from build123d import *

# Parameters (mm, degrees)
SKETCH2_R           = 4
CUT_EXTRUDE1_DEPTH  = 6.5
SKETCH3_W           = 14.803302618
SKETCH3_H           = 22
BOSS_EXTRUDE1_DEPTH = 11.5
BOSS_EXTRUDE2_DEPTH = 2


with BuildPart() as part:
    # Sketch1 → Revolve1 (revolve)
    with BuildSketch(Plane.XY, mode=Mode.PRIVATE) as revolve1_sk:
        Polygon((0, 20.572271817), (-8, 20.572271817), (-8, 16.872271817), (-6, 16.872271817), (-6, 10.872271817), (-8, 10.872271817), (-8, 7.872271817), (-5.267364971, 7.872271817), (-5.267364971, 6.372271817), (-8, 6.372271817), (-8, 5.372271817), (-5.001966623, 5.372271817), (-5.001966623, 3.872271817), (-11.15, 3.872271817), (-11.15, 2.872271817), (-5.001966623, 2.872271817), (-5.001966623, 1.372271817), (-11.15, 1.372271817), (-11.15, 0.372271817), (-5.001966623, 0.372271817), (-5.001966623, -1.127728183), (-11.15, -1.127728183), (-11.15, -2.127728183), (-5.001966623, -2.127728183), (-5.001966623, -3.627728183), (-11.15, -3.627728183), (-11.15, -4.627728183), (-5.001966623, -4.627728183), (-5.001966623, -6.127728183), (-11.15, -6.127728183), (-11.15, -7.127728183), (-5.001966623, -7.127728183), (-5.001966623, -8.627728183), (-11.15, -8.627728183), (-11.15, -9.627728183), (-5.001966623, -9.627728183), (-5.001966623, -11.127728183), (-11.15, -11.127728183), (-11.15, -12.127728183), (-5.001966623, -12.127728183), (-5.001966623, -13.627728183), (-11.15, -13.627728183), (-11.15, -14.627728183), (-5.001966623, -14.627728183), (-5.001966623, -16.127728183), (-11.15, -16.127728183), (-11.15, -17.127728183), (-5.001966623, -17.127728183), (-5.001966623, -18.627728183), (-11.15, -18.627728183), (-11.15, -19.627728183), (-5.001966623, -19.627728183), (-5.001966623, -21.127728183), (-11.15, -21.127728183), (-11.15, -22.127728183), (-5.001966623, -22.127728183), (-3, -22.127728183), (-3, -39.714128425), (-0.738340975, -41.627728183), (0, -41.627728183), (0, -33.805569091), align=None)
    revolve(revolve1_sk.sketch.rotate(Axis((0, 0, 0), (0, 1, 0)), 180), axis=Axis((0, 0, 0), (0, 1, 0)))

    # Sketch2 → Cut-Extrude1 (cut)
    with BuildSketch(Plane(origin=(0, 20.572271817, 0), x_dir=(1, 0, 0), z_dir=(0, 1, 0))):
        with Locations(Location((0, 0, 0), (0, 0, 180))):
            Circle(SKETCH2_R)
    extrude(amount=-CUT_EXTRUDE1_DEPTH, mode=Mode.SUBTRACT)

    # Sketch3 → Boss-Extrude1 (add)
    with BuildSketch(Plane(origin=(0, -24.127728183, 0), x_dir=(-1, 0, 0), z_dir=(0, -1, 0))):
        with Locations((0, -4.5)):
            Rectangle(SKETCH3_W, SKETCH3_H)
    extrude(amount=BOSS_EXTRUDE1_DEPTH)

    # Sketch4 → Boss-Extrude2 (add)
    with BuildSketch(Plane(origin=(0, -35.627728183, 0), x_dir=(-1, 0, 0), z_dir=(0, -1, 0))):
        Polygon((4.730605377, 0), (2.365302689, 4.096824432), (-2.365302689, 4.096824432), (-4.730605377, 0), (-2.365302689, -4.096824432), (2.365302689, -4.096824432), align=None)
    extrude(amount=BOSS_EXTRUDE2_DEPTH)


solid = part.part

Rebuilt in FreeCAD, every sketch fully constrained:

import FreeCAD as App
import Part
import Sketcher
Q = App.Units.Quantity

doc = App.newDocument("Part")
body = doc.addObject("PartDesign::Body", "Body")

sketch1 = doc.addObject("Sketcher::SketchObject", "Sketch")
body.addObject(sketch1)
sketch1.AttachmentSupport = (doc.XY_Plane, [""])
sketch1.MapMode = "FlatFace"
sketch1.addGeometry([
    Part.LineSegment(App.Vector(0, 20.6, 0), App.Vector(-8, 20.6, 0)),
    Part.LineSegment(App.Vector(-8, 20.6, 0), App.Vector(-8, 16.9, 0)),
    Part.LineSegment(App.Vector(-8, 16.9, 0), App.Vector(-6, 16.9, 0)),
    Part.LineSegment(App.Vector(-6, 16.9, 0), App.Vector(-6, 10.9, 0)),
    Part.LineSegment(App.Vector(-6, 10.9, 0), App.Vector(-8, 10.9, 0)),
    Part.LineSegment(App.Vector(-8, 10.9, 0), App.Vector(-8, 7.9, 0)),
    Part.LineSegment(App.Vector(-8, 7.9, 0), App.Vector(-5.3, 7.9, 0)),
    Part.LineSegment(App.Vector(-5.3, 7.9, 0), App.Vector(-5.3, 6.4, 0)),
    Part.LineSegment(App.Vector(-5.3, 6.4, 0), App.Vector(-8, 6.4, 0)),
    Part.LineSegment(App.Vector(-8, 6.4, 0), App.Vector(-8, 5.4, 0)),
    Part.LineSegment(App.Vector(-8, 5.4, 0), App.Vector(-5, 5.4, 0)),
    Part.LineSegment(App.Vector(-5, 5.4, 0), App.Vector(-5, 3.9, 0)),
    Part.LineSegment(App.Vector(-5, 3.9, 0), App.Vector(-11.2, 3.9, 0)),
    Part.LineSegment(App.Vector(-11.2, 3.9, 0), App.Vector(-11.2, 2.9, 0)),
    Part.LineSegment(App.Vector(-11.2, 2.9, 0), App.Vector(-5, 2.9, 0)),
    Part.LineSegment(App.Vector(-5, 2.9, 0), App.Vector(-5, 1.4, 0)),
    Part.LineSegment(App.Vector(-5, 1.4, 0), App.Vector(-11.2, 1.4, 0)),
    Part.LineSegment(App.Vector(-11.2, 1.4, 0), App.Vector(-11.2, 0.4, 0)),
    Part.LineSegment(App.Vector(-11.2, 0.4, 0), App.Vector(-5, 0.4, 0)),
    Part.LineSegment(App.Vector(-5, 0.4, 0), App.Vector(-5, -1.1, 0)),
    Part.LineSegment(App.Vector(-5, -1.1, 0), App.Vector(-11.2, -1.1, 0)),
    Part.LineSegment(App.Vector(-11.2, -1.1, 0), App.Vector(-11.2, -2.1, 0)),
    Part.LineSegment(App.Vector(-11.2, -2.1, 0), App.Vector(-5, -2.1, 0)),
    Part.LineSegment(App.Vector(-5, -2.1, 0), App.Vector(-5, -3.6, 0)),
    Part.LineSegment(App.Vector(-5, -3.6, 0), App.Vector(-11.2, -3.6, 0)),
    Part.LineSegment(App.Vector(-11.2, -3.6, 0), App.Vector(-11.2, -4.6, 0)),
    Part.LineSegment(App.Vector(-11.2, -4.6, 0), App.Vector(-5, -4.6, 0)),
    Part.LineSegment(App.Vector(-5, -4.6, 0), App.Vector(-5, -6.1, 0)),
    Part.LineSegment(App.Vector(-5, -6.1, 0), App.Vector(-11.2, -6.1, 0)),
    Part.LineSegment(App.Vector(-11.2, -6.1, 0), App.Vector(-11.2, -7.1, 0)),
    Part.LineSegment(App.Vector(-11.2, -7.1, 0), App.Vector(-5, -7.1, 0)),
    Part.LineSegment(App.Vector(-5, -7.1, 0), App.Vector(-5, -8.6, 0)),
    Part.LineSegment(App.Vector(-5, -8.6, 0), App.Vector(-11.2, -8.6, 0)),
    Part.LineSegment(App.Vector(-11.2, -8.6, 0), App.Vector(-11.2, -9.6, 0)),
    Part.LineSegment(App.Vector(-11.2, -9.6, 0), App.Vector(-5, -9.6, 0)),
    Part.LineSegment(App.Vector(-5, -9.6, 0), App.Vector(-5, -11.1, 0)),
    Part.LineSegment(App.Vector(-5, -11.1, 0), App.Vector(-11.2, -11.1, 0)),
    Part.LineSegment(App.Vector(-11.2, -11.1, 0), App.Vector(-11.2, -12.1, 0)),
    Part.LineSegment(App.Vector(-11.2, -12.1, 0), App.Vector(-5, -12.1, 0)),
    Part.LineSegment(App.Vector(-5, -12.1, 0), App.Vector(-5, -13.6, 0)),
    Part.LineSegment(App.Vector(-5, -13.6, 0), App.Vector(-11.2, -13.6, 0)),
    Part.LineSegment(App.Vector(-11.2, -13.6, 0), App.Vector(-11.2, -14.6, 0)),
    Part.LineSegment(App.Vector(-11.2, -14.6, 0), App.Vector(-5, -14.6, 0)),
    Part.LineSegment(App.Vector(-5, -14.6, 0), App.Vector(-5, -16.1, 0)),
    Part.LineSegment(App.Vector(-5, -16.1, 0), App.Vector(-11.2, -16.1, 0)),
    Part.LineSegment(App.Vector(-11.2, -16.1, 0), App.Vector(-11.2, -17.1, 0)),
    Part.LineSegment(App.Vector(-11.2, -17.1, 0), App.Vector(-5, -17.1, 0)),
    Part.LineSegment(App.Vector(-5, -17.1, 0), App.Vector(-5, -18.6, 0)),
    Part.LineSegment(App.Vector(-5, -18.6, 0), App.Vector(-11.2, -18.6, 0)),
    Part.LineSegment(App.Vector(-11.2, -18.6, 0), App.Vector(-11.2, -19.6, 0)),
    Part.LineSegment(App.Vector(-11.2, -19.6, 0), App.Vector(-5, -19.6, 0)),
    Part.LineSegment(App.Vector(-5, -19.6, 0), App.Vector(-5, -21.1, 0)),
    Part.LineSegment(App.Vector(-5, -21.1, 0), App.Vector(-11.2, -21.1, 0)),
    Part.LineSegment(App.Vector(-11.2, -21.1, 0), App.Vector(-11.2, -22.1, 0)),
    Part.LineSegment(App.Vector(-11.2, -22.1, 0), App.Vector(-3, -22.1, 0)),
    Part.LineSegment(App.Vector(-3, -22.1, 0), App.Vector(-3, -39.7, 0)),
    Part.LineSegment(App.Vector(-3, -39.7, 0), App.Vector(-0.7, -41.6, 0)),
    Part.LineSegment(App.Vector(-0.7, -41.6, 0), App.Vector(0, -41.6, 0)),
    Part.LineSegment(App.Vector(0, -41.6, 0), App.Vector(0, 20.6, 0)),
], False)
sketch1.addConstraint([
    Sketcher.Constraint("Coincident", 0, 2, 1, 1),
    Sketcher.Constraint("Coincident", 1, 2, 2, 1),
    Sketcher.Constraint("Coincident", 2, 2, 3, 1),
    Sketcher.Constraint("Coincident", 3, 2, 4, 1),
    Sketcher.Constraint("Coincident", 4, 2, 5, 1),
    Sketcher.Constraint("Coincident", 5, 2, 6, 1),
    Sketcher.Constraint("Coincident", 6, 2, 7, 1),
    Sketcher.Constraint("Coincident", 7, 2, 8, 1),
    Sketcher.Constraint("Coincident", 8, 2, 9, 1),
    Sketcher.Constraint("Coincident", 9, 2, 10, 1),
    Sketcher.Constraint("Coincident", 10, 2, 11, 1),
    Sketcher.Constraint("Coincident", 11, 2, 12, 1),
    Sketcher.Constraint("Coincident", 12, 2, 13, 1),
    Sketcher.Constraint("Coincident", 13, 2, 14, 1),
    Sketcher.Constraint("Coincident", 14, 2, 15, 1),
    Sketcher.Constraint("Coincident", 15, 2, 16, 1),
    Sketcher.Constraint("Coincident", 16, 2, 17, 1),
    Sketcher.Constraint("Coincident", 17, 2, 18, 1),
    Sketcher.Constraint("Coincident", 18, 2, 19, 1),
    Sketcher.Constraint("Coincident", 19, 2, 20, 1),
    Sketcher.Constraint("Coincident", 20, 2, 21, 1),
    Sketcher.Constraint("Coincident", 21, 2, 22, 1),
    Sketcher.Constraint("Coincident", 22, 2, 23, 1),
    Sketcher.Constraint("Coincident", 23, 2, 24, 1),
    Sketcher.Constraint("Coincident", 24, 2, 25, 1),
    Sketcher.Constraint("Coincident", 25, 2, 26, 1),
    Sketcher.Constraint("Coincident", 26, 2, 27, 1),
    Sketcher.Constraint("Coincident", 27, 2, 28, 1),
    Sketcher.Constraint("Coincident", 28, 2, 29, 1),
    Sketcher.Constraint("Coincident", 29, 2, 30, 1),
    Sketcher.Constraint("Coincident", 30, 2, 31, 1),
    Sketcher.Constraint("Coincident", 31, 2, 32, 1),
    Sketcher.Constraint("Coincident", 32, 2, 33, 1),
    Sketcher.Constraint("Coincident", 33, 2, 34, 1),
    Sketcher.Constraint("Coincident", 34, 2, 35, 1),
    Sketcher.Constraint("Coincident", 35, 2, 36, 1),
    Sketcher.Constraint("Coincident", 36, 2, 37, 1),
    Sketcher.Constraint("Coincident", 37, 2, 38, 1),
    Sketcher.Constraint("Coincident", 38, 2, 39, 1),
    Sketcher.Constraint("Coincident", 39, 2, 40, 1),
    Sketcher.Constraint("Coincident", 40, 2, 41, 1),
    Sketcher.Constraint("Coincident", 41, 2, 42, 1),
    Sketcher.Constraint("Coincident", 42, 2, 43, 1),
    Sketcher.Constraint("Coincident", 43, 2, 44, 1),
    Sketcher.Constraint("Coincident", 44, 2, 45, 1),
    Sketcher.Constraint("Coincident", 45, 2, 46, 1),
    Sketcher.Constraint("Coincident", 46, 2, 47, 1),
    Sketcher.Constraint("Coincident", 47, 2, 48, 1),
    Sketcher.Constraint("Coincident", 48, 2, 49, 1),
    Sketcher.Constraint("Coincident", 49, 2, 50, 1),
    Sketcher.Constraint("Coincident", 50, 2, 51, 1),
    Sketcher.Constraint("Coincident", 51, 2, 52, 1),
    Sketcher.Constraint("Coincident", 52, 2, 53, 1),
    Sketcher.Constraint("Coincident", 53, 2, 54, 1),
    Sketcher.Constraint("Coincident", 54, 2, 55, 1),
    Sketcher.Constraint("Coincident", 55, 2, 56, 1),
    Sketcher.Constraint("Coincident", 56, 2, 57, 1),
    Sketcher.Constraint("Coincident", 57, 2, 58, 1),
    Sketcher.Constraint("Coincident", 58, 2, 0, 1),
    Sketcher.Constraint("Horizontal", 0),
    Sketcher.Constraint("Vertical", 1),
    Sketcher.Constraint("Horizontal", 2),
    Sketcher.Constraint("Vertical", 3),
    Sketcher.Constraint("Horizontal", 4),
    Sketcher.Constraint("Vertical", 5),
    Sketcher.Constraint("Horizontal", 6),
    Sketcher.Constraint("Vertical", 7),
    Sketcher.Constraint("Horizontal", 8),
    Sketcher.Constraint("Vertical", 9),
    Sketcher.Constraint("Horizontal", 10),
    Sketcher.Constraint("Vertical", 11),
    Sketcher.Constraint("Horizontal", 12),
    Sketcher.Constraint("Vertical", 13),
    Sketcher.Constraint("Horizontal", 14),
    Sketcher.Constraint("Vertical", 15),
    Sketcher.Constraint("Horizontal", 16),
    Sketcher.Constraint("Vertical", 17),
    Sketcher.Constraint("Horizontal", 18),
    Sketcher.Constraint("Vertical", 19),
    Sketcher.Constraint("Horizontal", 20),
    Sketcher.Constraint("Vertical", 21),
    Sketcher.Constraint("Horizontal", 22),
    Sketcher.Constraint("Vertical", 23),
    Sketcher.Constraint("Horizontal", 24),
    Sketcher.Constraint("Vertical", 25),
    Sketcher.Constraint("Horizontal", 26),
    Sketcher.Constraint("Vertical", 27),
    Sketcher.Constraint("Horizontal", 28),
    Sketcher.Constraint("Vertical", 29),
    Sketcher.Constraint("Horizontal", 30),
    Sketcher.Constraint("Vertical", 31),
    Sketcher.Constraint("Horizontal", 32),
    Sketcher.Constraint("Vertical", 33),
    Sketcher.Constraint("Horizontal", 34),
    Sketcher.Constraint("Vertical", 35),
    Sketcher.Constraint("Horizontal", 36),
    Sketcher.Constraint("Vertical", 37),
    Sketcher.Constraint("Horizontal", 38),
    Sketcher.Constraint("Vertical", 39),
    Sketcher.Constraint("Horizontal", 40),
    Sketcher.Constraint("Vertical", 41),
    Sketcher.Constraint("Horizontal", 42),
    Sketcher.Constraint("Vertical", 43),
    Sketcher.Constraint("Horizontal", 44),
    Sketcher.Constraint("Vertical", 45),
    Sketcher.Constraint("Horizontal", 46),
    Sketcher.Constraint("Vertical", 47),
    Sketcher.Constraint("Horizontal", 48),
    Sketcher.Constraint("Vertical", 49),
    Sketcher.Constraint("Horizontal", 50),
    Sketcher.Constraint("Vertical", 51),
    Sketcher.Constraint("Horizontal", 52),
    Sketcher.Constraint("Vertical", 53),
    Sketcher.Constraint("Horizontal", 54),
    Sketcher.Constraint("Vertical", 55),
    Sketcher.Constraint("Horizontal", 57),
    Sketcher.Constraint("Vertical", 58),
    Sketcher.Constraint("PointOnObject", 57, 2, -2),
    Sketcher.Constraint("Vertical", 1, 2, 4, 2),
    Sketcher.Constraint("Vertical", 5, 2, 8, 2),
    Sketcher.Constraint("Vertical", 11, 2, 14, 2),
    Sketcher.Constraint("Vertical", 13, 2, 16, 2),
    Sketcher.Constraint("Vertical", 15, 2, 18, 2),
    Sketcher.Constraint("Vertical", 17, 2, 20, 2),
    Sketcher.Constraint("Vertical", 19, 2, 22, 2),
    Sketcher.Constraint("Vertical", 21, 2, 24, 2),
    Sketcher.Constraint("Vertical", 23, 2, 26, 2),
    Sketcher.Constraint("Vertical", 25, 2, 28, 2),
    Sketcher.Constraint("Vertical", 27, 2, 30, 2),
    Sketcher.Constraint("Vertical", 29, 2, 32, 2),
    Sketcher.Constraint("Vertical", 31, 2, 34, 2),
    Sketcher.Constraint("Vertical", 33, 2, 36, 2),
    Sketcher.Constraint("Vertical", 35, 2, 38, 2),
    Sketcher.Constraint("Vertical", 37, 2, 40, 2),
    Sketcher.Constraint("Vertical", 39, 2, 42, 2),
    Sketcher.Constraint("Vertical", 41, 2, 44, 2),
    Sketcher.Constraint("Vertical", 43, 2, 46, 2),
    Sketcher.Constraint("Vertical", 45, 2, 48, 2),
    Sketcher.Constraint("Vertical", 47, 2, 50, 2),
    Sketcher.Constraint("Vertical", 49, 2, 52, 2),
    Sketcher.Constraint("Equal", 7, 11),
    Sketcher.Constraint("Equal", 9, 13),
    Sketcher.Constraint("Equal", 11, 15),
    Sketcher.Constraint("Equal", 13, 17),
    Sketcher.Constraint("Equal", 15, 19),
    Sketcher.Constraint("Equal", 17, 21),
    Sketcher.Constraint("Equal", 19, 23),
    Sketcher.Constraint("Equal", 21, 25),
    Sketcher.Constraint("Equal", 23, 27),
    Sketcher.Constraint("Equal", 25, 29),
    Sketcher.Constraint("Equal", 27, 31),
    Sketcher.Constraint("Equal", 29, 33),
    Sketcher.Constraint("Equal", 31, 35),
    Sketcher.Constraint("Equal", 33, 37),
    Sketcher.Constraint("Equal", 35, 39),
    Sketcher.Constraint("Equal", 37, 41),
    Sketcher.Constraint("Equal", 39, 43),
    Sketcher.Constraint("Equal", 41, 45),
    Sketcher.Constraint("Equal", 43, 47),
    Sketcher.Constraint("Equal", 45, 49),
    Sketcher.Constraint("Equal", 47, 51),
    Sketcher.Constraint("Equal", 49, 53),
    Sketcher.Constraint("DistanceX", 0, 2, 0, 1, 8.0),
    Sketcher.Constraint("DistanceX", 2, 1, 2, 2, 2.0),
    Sketcher.Constraint("DistanceY", 3, 2, 3, 1, 6.0),
    Sketcher.Constraint("DistanceY", 5, 2, 5, 1, 3.0),
    Sketcher.Constraint("DistanceY", 9, 2, 9, 1, 1.0),
    Sketcher.Constraint("DistanceY", 1, 2, 1, 1, 3.7),
    Sketcher.Constraint("DistanceY", 7, 2, 7, 1, 1.5),
    Sketcher.Constraint("DistanceY", 58, 1, 58, 2, 62.2),
    Sketcher.Constraint("DistanceX", 54, 2, -1, 1, 3.0),
    Sketcher.Constraint("DistanceX", 54, 1, 54, 2, 8.15),
    Sketcher.Constraint("DistanceY", 55, 2, 55, 1, 17.5864),
    Sketcher.Constraint("DistanceX", 57, 1, 57, 2, 0.738341),
    Sketcher.Constraint("DistanceX", 7, 2, 10, 2, 0.265398),
    Sketcher.Constraint("DistanceX", 6, 1, 6, 2, 2.732635),
    Sketcher.Constraint("DistanceY", -1, 1, 0, 2, 20.572272),
])
revolution = doc.addObject("PartDesign::Revolution", "Revolution")
body.addObject(revolution)
revolution.Profile = sketch1
revolution.ReferenceAxis = (sketch1, ["V_Axis"])
revolution.Angle = 360

sketch2 = doc.addObject("Sketcher::SketchObject", "Sketch001")
body.addObject(sketch2)
sketch2.AttachmentSupport = (doc.XZ_Plane, [""])
sketch2.MapMode = "FlatFace"
sketch2.AttachmentOffset = App.Placement(App.Vector(0, 0, -20.572272), App.Rotation())
sketch2.addGeometry(Part.Circle(App.Vector(0, 0, 0), App.Vector(0, 0, 1), 4), False)
sketch2.addConstraint([
    Sketcher.Constraint("Coincident", 0, 3, -1, 1),
    Sketcher.Constraint("Diameter", 0, 8.0),
])
pocket1 = doc.addObject("PartDesign::Pocket", "Pocket")
body.addObject(pocket1)
pocket1.Profile = sketch2
pocket1.Length = 6.5
pocket1.Reversed = True

sketch3 = doc.addObject("Sketcher::SketchObject", "Sketch002")
body.addObject(sketch3)
sketch3.AttachmentSupport = (doc.XZ_Plane, [""])
sketch3.MapMode = "FlatFace"
sketch3.AttachmentOffset = App.Placement(App.Vector(0, 0, 24.127728), App.Rotation())
sketch3.addGeometry([
    Part.LineSegment(App.Vector(7, -6, 0), App.Vector(7, 16, 0)),
    Part.LineSegment(App.Vector(7, 16, 0), App.Vector(-7, 16, 0)),
    Part.LineSegment(App.Vector(-7, 16, 0), App.Vector(-7, -6, 0)),
    Part.LineSegment(App.Vector(-7, -6, 0), App.Vector(7, -6, 0)),
], False)
sketch3.addConstraint([
    Sketcher.Constraint("Coincident", 0, 2, 1, 1),
    Sketcher.Constraint("Coincident", 1, 2, 2, 1),
    Sketcher.Constraint("Coincident", 2, 2, 3, 1),
    Sketcher.Constraint("Coincident", 3, 2, 0, 1),
    Sketcher.Constraint("Vertical", 0),
    Sketcher.Constraint("Horizontal", 1),
    Sketcher.Constraint("Vertical", 2),
    Sketcher.Constraint("Horizontal", 3),
    Sketcher.Constraint("DistanceY", 0, 1, 0, 2, 22.0),
    Sketcher.Constraint("DistanceY", -1, 1, 0, 2, 15.5),
    Sketcher.Constraint("DistanceX", 1, 2, 1, 1, 14.803303),
    Sketcher.Constraint("DistanceX", -1, 1, 0, 2, 7.401651),
])
pad1 = doc.addObject("PartDesign::Pad", "Pad")
body.addObject(pad1)
pad1.Profile = sketch3
pad1.Length = 11.5

sketch4 = doc.addObject("Sketcher::SketchObject", "Sketch003")
body.addObject(sketch4)
sketch4.AttachmentSupport = (doc.XZ_Plane, [""])
sketch4.MapMode = "FlatFace"
sketch4.AttachmentOffset = App.Placement(App.Vector(0, 0, 35.627728), App.Rotation())
sketch4.addGeometry([
    Part.LineSegment(App.Vector(-4.7, 0, 0), App.Vector(-2.4, -4.1, 0)),
    Part.LineSegment(App.Vector(-2.4, -4.1, 0), App.Vector(2.4, -4.1, 0)),
    Part.LineSegment(App.Vector(2.4, -4.1, 0), App.Vector(4.7, 0, 0)),
    Part.LineSegment(App.Vector(4.7, 0, 0), App.Vector(2.4, 4.1, 0)),
    Part.LineSegment(App.Vector(2.4, 4.1, 0), App.Vector(-2.4, 4.1, 0)),
    Part.LineSegment(App.Vector(-2.4, 4.1, 0), App.Vector(-4.7, 0, 0)),
], False)
sketch4.addConstraint([
    Sketcher.Constraint("Coincident", 0, 2, 1, 1),
    Sketcher.Constraint("Coincident", 1, 2, 2, 1),
    Sketcher.Constraint("Coincident", 2, 2, 3, 1),
    Sketcher.Constraint("Coincident", 3, 2, 4, 1),
    Sketcher.Constraint("Coincident", 4, 2, 5, 1),
    Sketcher.Constraint("Coincident", 5, 2, 0, 1),
    Sketcher.Constraint("Horizontal", 1),
    Sketcher.Constraint("Horizontal", 4),
    Sketcher.Constraint("Symmetric", 0, 2, 3, 2, -1, 1),
    Sketcher.Constraint("Symmetric", 2, 2, 5, 2, -1, 1),
    Sketcher.Constraint("PointOnObject", 2, 2, -1),
    Sketcher.Constraint("Parallel", 2, 5),
    Sketcher.Constraint("Vertical", 1, 2, 3, 2),
    Sketcher.Constraint("Angle", 0, Q("-60 deg")),
    Sketcher.Constraint("DistanceX", 1, 1, 1, 2, 4.730605),
    Sketcher.Constraint("DistanceX", 0, 2, 2, 2, 7.095908),
])
pad2 = doc.addObject("PartDesign::Pad", "Pad001")
body.addObject(pad2)
pad2.Profile = sketch4
pad2.Length = 2

doc.recompute()
